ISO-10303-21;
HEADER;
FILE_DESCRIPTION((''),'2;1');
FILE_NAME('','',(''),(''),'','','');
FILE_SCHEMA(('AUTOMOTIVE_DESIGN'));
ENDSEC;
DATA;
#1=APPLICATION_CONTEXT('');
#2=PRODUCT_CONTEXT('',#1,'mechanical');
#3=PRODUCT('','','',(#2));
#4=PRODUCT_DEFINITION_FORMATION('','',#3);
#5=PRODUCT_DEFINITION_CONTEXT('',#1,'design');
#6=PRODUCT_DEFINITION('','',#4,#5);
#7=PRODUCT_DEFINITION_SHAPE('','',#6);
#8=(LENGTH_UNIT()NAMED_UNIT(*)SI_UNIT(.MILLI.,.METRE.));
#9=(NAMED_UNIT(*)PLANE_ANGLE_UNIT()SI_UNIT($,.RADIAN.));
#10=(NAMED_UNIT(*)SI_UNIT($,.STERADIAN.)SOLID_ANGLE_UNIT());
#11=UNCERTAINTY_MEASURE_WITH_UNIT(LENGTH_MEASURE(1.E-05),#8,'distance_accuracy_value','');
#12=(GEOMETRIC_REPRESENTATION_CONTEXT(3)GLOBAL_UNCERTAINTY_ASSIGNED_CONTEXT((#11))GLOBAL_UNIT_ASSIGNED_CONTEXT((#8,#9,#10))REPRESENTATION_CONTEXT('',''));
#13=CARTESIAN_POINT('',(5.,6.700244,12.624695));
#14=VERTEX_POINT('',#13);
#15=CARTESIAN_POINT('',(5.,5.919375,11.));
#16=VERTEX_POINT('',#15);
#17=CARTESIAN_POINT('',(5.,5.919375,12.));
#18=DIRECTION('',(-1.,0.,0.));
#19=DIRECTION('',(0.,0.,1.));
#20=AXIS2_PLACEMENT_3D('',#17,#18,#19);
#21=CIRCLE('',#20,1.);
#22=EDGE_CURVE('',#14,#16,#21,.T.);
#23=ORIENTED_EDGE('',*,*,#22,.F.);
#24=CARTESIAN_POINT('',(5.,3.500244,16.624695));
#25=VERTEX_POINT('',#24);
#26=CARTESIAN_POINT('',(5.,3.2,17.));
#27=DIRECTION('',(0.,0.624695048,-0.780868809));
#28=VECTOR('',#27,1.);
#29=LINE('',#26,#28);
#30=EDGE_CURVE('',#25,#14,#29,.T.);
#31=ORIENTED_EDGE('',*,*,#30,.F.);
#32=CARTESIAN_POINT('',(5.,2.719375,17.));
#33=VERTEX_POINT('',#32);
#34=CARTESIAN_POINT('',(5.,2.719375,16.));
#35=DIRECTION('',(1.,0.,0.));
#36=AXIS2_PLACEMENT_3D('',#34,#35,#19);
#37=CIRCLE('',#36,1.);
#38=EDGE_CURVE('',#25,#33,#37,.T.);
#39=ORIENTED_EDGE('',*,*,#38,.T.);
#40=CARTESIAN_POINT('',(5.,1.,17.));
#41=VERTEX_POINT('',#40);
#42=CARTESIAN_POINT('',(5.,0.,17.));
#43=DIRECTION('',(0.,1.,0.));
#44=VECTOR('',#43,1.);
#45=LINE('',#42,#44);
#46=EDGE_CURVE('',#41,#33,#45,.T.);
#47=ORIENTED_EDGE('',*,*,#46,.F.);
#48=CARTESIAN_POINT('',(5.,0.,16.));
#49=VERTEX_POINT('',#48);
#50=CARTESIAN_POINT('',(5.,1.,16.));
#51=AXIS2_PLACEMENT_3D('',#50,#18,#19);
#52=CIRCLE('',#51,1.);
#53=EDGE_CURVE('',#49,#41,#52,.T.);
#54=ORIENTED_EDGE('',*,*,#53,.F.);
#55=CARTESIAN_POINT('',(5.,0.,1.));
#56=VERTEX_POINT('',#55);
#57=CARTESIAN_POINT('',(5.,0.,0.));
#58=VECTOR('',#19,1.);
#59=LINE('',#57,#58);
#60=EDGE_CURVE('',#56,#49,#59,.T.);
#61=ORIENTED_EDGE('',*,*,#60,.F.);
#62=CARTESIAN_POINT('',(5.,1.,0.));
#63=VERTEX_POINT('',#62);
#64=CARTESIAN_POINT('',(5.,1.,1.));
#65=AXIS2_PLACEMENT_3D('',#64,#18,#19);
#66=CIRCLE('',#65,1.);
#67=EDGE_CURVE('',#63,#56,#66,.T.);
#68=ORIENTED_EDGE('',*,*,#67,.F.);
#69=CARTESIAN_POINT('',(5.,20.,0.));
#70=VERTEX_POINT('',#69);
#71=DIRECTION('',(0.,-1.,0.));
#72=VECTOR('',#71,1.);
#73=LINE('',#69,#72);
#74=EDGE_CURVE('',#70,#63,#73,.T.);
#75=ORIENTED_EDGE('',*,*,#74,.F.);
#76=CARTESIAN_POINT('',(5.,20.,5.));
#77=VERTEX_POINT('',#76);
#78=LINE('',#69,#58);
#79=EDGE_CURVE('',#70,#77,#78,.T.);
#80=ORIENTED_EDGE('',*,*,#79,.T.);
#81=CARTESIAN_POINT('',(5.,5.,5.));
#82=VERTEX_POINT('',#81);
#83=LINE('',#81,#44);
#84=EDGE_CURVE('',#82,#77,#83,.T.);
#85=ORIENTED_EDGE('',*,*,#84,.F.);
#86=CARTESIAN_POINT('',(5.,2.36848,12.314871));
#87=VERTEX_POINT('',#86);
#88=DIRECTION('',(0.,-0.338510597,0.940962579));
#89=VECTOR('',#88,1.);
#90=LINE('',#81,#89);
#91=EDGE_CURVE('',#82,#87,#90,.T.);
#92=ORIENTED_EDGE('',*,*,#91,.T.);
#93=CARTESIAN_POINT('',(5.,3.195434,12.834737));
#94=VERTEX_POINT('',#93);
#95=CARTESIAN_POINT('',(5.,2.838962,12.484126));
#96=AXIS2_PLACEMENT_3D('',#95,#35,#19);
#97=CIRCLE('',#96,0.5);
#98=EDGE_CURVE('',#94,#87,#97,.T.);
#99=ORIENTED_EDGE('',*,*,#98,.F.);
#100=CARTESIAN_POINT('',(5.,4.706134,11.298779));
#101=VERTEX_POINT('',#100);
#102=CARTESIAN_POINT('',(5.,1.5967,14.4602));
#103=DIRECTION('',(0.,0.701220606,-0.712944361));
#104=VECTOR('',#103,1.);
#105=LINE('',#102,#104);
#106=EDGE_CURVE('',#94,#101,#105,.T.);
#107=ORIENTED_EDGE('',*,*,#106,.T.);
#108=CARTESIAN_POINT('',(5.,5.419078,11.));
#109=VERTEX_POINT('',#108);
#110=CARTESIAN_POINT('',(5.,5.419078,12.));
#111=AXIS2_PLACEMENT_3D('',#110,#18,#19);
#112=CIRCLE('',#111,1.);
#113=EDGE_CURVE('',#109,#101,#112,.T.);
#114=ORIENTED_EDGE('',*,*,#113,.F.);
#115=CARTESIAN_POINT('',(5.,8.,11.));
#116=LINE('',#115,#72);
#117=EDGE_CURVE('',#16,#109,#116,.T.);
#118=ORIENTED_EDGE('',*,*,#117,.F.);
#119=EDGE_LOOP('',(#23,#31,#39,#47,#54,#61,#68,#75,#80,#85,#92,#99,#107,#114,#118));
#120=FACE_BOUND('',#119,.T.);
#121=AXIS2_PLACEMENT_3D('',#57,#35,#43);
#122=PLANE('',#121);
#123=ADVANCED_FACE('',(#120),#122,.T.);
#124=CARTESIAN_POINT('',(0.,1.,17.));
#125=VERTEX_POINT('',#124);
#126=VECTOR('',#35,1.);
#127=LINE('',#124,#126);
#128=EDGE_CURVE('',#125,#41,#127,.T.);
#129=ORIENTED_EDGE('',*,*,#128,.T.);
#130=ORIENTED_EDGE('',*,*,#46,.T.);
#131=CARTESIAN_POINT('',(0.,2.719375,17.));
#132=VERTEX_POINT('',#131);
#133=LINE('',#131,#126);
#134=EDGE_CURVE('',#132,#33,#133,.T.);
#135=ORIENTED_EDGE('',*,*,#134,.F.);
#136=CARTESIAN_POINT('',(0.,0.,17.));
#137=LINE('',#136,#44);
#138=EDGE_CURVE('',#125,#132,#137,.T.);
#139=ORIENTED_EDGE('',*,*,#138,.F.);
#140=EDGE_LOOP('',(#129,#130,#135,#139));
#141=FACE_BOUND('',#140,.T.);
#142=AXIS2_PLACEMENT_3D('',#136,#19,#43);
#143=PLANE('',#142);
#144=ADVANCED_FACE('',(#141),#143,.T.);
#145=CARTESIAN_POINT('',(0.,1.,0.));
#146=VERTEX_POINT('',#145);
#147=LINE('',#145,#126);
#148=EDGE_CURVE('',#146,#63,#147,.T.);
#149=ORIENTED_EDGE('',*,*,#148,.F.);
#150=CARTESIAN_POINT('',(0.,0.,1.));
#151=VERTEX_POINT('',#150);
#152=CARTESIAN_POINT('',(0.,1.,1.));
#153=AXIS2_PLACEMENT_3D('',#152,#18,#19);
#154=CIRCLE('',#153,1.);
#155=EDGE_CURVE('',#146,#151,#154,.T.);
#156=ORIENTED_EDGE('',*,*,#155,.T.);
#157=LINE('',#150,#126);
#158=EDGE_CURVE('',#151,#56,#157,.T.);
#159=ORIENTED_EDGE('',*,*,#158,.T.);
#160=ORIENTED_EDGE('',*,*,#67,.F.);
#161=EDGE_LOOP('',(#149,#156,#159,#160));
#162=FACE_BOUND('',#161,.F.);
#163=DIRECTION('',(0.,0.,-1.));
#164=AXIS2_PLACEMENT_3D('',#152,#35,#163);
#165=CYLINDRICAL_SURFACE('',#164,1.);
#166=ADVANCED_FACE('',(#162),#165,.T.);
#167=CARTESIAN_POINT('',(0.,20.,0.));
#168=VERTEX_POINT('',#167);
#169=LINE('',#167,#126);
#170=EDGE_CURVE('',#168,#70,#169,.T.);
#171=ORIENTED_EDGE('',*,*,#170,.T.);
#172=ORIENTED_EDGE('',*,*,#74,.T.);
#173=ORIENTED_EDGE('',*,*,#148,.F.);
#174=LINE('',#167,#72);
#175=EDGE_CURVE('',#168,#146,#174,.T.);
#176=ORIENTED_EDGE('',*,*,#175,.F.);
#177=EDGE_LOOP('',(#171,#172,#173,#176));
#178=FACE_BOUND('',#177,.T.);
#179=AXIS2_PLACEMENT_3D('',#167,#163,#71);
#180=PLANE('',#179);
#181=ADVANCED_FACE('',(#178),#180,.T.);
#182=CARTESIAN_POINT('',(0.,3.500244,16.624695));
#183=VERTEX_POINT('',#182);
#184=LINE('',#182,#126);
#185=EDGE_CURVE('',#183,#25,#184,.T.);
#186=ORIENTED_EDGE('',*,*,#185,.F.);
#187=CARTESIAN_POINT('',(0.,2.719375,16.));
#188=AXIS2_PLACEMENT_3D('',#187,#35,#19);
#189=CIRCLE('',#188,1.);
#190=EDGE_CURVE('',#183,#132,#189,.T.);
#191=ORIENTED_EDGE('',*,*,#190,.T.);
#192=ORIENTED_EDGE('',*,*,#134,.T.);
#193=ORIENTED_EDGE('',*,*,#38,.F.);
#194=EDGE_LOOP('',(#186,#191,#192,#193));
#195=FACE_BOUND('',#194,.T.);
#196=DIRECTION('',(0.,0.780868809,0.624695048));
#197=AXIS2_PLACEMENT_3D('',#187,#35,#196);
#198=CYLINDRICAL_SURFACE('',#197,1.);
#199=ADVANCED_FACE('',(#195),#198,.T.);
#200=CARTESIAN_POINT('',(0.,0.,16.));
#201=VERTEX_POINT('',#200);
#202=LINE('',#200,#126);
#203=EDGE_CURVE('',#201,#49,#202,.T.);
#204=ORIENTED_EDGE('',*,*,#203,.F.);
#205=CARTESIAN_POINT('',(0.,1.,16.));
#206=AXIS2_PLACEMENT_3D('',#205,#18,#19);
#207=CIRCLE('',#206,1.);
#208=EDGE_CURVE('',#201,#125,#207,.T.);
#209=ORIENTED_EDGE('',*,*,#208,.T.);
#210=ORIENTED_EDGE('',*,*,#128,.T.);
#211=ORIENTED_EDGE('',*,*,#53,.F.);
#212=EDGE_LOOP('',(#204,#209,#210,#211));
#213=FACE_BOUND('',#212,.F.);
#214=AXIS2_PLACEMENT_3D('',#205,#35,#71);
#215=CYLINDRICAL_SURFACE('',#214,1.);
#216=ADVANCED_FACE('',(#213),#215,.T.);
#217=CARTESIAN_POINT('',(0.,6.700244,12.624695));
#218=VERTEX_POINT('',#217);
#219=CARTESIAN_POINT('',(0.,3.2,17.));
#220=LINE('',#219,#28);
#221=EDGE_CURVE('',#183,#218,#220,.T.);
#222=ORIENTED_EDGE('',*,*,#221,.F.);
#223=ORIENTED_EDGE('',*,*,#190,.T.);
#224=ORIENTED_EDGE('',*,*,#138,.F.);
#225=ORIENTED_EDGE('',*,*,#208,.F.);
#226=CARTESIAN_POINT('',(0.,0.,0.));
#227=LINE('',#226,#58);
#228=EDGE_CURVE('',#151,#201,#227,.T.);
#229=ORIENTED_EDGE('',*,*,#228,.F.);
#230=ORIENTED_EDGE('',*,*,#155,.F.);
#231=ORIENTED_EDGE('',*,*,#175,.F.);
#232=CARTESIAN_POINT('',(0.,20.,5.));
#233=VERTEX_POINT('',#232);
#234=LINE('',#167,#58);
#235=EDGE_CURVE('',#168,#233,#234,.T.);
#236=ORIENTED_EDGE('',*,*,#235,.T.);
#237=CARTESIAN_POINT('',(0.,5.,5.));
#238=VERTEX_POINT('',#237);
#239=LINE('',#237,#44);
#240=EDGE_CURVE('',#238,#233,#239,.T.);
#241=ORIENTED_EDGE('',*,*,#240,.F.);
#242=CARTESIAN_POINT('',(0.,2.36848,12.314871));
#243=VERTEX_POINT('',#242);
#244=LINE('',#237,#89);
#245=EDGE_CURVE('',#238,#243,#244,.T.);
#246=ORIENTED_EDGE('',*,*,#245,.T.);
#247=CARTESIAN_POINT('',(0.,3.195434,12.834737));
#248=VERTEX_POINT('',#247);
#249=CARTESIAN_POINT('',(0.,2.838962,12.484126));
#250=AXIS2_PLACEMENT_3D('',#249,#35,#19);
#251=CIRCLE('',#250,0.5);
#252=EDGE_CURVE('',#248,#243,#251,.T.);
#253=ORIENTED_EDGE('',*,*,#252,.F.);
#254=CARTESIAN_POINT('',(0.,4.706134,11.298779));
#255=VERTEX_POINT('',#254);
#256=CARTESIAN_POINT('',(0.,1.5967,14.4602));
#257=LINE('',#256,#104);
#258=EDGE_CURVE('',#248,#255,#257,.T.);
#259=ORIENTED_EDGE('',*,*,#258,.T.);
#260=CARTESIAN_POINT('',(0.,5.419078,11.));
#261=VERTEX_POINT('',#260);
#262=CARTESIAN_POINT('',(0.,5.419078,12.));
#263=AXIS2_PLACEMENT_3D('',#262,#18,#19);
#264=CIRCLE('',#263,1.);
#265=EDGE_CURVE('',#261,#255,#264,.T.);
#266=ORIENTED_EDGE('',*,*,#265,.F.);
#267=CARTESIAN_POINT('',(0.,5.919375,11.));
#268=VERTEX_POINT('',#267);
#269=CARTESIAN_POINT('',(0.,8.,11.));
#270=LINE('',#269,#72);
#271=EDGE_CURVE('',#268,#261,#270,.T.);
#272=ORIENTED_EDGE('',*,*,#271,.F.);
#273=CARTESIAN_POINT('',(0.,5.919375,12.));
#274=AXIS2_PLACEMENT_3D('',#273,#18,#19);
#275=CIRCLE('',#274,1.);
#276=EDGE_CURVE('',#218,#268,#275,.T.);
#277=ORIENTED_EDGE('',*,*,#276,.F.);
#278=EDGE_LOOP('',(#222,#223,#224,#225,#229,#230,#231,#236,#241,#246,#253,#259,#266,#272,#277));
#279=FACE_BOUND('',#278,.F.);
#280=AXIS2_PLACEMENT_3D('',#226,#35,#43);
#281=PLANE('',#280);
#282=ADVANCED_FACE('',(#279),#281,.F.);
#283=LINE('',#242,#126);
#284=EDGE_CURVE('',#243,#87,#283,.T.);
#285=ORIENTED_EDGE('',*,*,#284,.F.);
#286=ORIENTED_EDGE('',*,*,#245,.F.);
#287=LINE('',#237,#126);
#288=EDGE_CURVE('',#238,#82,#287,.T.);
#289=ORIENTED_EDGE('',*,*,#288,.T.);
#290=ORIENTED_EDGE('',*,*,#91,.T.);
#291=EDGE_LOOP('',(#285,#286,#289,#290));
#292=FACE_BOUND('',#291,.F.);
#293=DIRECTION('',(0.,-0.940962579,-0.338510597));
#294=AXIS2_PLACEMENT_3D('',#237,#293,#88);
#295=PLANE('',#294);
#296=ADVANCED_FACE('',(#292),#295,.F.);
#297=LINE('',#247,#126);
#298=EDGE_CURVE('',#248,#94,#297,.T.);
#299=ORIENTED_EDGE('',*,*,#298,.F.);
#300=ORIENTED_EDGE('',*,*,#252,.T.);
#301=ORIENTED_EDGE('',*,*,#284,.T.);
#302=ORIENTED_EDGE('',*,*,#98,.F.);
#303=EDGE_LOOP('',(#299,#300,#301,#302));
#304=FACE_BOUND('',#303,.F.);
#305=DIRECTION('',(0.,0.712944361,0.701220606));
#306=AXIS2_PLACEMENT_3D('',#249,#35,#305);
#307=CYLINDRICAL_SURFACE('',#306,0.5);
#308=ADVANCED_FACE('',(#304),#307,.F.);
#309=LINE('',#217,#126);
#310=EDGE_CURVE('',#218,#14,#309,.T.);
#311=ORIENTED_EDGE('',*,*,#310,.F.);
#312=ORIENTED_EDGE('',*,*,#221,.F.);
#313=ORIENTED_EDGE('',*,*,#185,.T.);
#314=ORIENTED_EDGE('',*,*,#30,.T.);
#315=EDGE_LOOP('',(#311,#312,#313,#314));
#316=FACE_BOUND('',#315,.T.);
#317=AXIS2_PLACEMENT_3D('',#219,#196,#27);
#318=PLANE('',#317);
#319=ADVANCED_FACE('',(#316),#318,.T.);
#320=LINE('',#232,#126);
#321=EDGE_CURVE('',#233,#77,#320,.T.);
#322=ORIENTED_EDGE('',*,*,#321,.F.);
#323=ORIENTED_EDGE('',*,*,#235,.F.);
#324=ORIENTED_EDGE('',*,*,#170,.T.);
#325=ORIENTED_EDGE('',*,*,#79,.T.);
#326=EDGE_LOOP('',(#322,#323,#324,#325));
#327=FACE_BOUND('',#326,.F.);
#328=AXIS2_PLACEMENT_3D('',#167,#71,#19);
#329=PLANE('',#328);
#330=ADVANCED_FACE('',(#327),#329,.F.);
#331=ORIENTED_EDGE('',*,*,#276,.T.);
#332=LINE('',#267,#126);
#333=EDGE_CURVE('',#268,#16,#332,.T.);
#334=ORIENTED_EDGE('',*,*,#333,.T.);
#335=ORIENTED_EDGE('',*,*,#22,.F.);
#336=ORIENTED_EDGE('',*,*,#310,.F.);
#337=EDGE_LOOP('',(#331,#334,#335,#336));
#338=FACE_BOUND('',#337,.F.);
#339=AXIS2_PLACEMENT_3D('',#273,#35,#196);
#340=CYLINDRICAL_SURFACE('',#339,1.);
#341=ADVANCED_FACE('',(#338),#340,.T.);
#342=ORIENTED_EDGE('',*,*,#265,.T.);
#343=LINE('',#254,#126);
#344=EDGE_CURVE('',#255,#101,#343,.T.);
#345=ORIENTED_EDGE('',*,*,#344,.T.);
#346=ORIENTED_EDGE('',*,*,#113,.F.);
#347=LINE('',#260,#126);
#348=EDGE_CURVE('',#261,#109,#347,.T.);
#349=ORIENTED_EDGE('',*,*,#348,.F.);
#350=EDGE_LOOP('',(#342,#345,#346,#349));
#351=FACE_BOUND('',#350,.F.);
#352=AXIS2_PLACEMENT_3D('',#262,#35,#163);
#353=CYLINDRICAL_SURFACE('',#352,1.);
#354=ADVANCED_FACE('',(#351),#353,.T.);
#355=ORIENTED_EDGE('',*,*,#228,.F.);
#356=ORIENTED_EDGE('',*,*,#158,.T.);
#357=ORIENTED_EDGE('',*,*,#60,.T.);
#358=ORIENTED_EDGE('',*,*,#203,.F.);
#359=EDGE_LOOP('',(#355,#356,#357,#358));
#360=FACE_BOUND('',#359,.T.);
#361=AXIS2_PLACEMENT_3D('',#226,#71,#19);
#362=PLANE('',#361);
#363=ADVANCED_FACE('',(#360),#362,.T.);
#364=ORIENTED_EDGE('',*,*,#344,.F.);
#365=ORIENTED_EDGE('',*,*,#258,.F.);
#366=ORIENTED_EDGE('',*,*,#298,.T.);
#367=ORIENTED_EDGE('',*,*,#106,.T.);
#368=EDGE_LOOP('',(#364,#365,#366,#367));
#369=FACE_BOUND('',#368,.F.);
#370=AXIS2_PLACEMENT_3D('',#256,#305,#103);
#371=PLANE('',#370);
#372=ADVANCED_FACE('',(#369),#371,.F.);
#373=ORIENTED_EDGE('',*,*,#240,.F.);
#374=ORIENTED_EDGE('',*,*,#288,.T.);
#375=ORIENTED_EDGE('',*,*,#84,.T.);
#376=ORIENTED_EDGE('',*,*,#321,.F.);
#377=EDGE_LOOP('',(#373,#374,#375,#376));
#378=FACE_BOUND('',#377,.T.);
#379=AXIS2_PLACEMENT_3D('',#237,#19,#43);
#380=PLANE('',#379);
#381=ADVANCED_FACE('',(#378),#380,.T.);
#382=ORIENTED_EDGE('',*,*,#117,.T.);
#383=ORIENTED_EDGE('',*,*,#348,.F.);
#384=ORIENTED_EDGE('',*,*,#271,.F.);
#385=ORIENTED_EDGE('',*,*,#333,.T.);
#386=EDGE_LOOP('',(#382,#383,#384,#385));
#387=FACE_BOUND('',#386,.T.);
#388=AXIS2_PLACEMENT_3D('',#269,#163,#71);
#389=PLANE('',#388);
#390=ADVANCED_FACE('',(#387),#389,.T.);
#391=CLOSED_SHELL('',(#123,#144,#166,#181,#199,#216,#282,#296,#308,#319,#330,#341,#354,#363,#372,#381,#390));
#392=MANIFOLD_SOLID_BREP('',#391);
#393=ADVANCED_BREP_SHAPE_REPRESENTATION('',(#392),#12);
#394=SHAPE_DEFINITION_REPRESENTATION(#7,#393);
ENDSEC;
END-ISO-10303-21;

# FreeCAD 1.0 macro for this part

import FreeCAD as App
import Part
import Sketcher
from FreeCAD import Vector
Q = App.Units.Quantity


def edges_at(feature, points):
    """Names of the edges that pass closest to the given points."""
    edges = feature.Shape.Edges
    near = lambda p: min(range(len(edges)), key=lambda i: edges[i].distToShape(Part.Vertex(*p))[0])
    return sorted({f"Edge{near(p) + 1}" for p in points})

doc = App.newDocument("Part")
body = doc.addObject("PartDesign::Body", "Body")

sketch1 = body.newObject("Sketcher::SketchObject", "Sketch")
sketch1.AttachmentSupport = (doc.getObject("YZ_Plane"), [""])
sketch1.MapMode = "FlatFace"
sketch1.addGeometry(Part.LineSegment(Vector(8, 11, 0), Vector(3.2, 17, 0)), False)
sketch1.addGeometry(Part.LineSegment(Vector(3.2, 17, 0), Vector(0, 17, 0)), False)
sketch1.addGeometry(Part.LineSegment(Vector(0, 17, 0), Vector(0, 0, 0)), False)
sketch1.addGeometry(Part.LineSegment(Vector(0, 0, 0), Vector(20, 0, 0)), False)
sketch1.addGeometry(Part.LineSegment(Vector(20, 0, 0), Vector(20, 5, 0)), False)
sketch1.addGeometry(Part.LineSegment(Vector(20, 5, 0), Vector(5, 5, 0)), False)
sketch1.addGeometry(Part.LineSegment(Vector(5, 5, 0), Vector(1.6, 14.5, 0)), False)
sketch1.addGeometry(Part.LineSegment(Vector(1.6, 14.5, 0), Vector(5, 11, 0)), False)
sketch1.addGeometry(Part.LineSegment(Vector(5, 11, 0), Vector(8, 11, 0)), False)
sketch1.addConstraint(Sketcher.Constraint("Coincident", 0, 2, 1, 1))
sketch1.addConstraint(Sketcher.Constraint("Coincident", 1, 2, 2, 1))
sketch1.addConstraint(Sketcher.Constraint("Coincident", 2, 2, 3, 1))
sketch1.addConstraint(Sketcher.Constraint("Coincident", 3, 2, 4, 1))
sketch1.addConstraint(Sketcher.Constraint("Coincident", 4, 2, 5, 1))
sketch1.addConstraint(Sketcher.Constraint("Coincident", 5, 2, 6, 1))
sketch1.addConstraint(Sketcher.Constraint("Coincident", 6, 2, 7, 1))
sketch1.addConstraint(Sketcher.Constraint("Coincident", 7, 2, 8, 1))
sketch1.addConstraint(Sketcher.Constraint("Coincident", 8, 2, 0, 1))
sketch1.addConstraint(Sketcher.Constraint("Horizontal", 1))
sketch1.addConstraint(Sketcher.Constraint("Vertical", 2))
sketch1.addConstraint(Sketcher.Constraint("Horizontal", 3))
sketch1.addConstraint(Sketcher.Constraint("Vertical", 4))
sketch1.addConstraint(Sketcher.Constraint("Horizontal", 5))
sketch1.addConstraint(Sketcher.Constraint("Horizontal", 8))
sketch1.addConstraint(Sketcher.Constraint("Coincident", 2, 2, -1, 1))
sketch1.addConstraint(Sketcher.Constraint("Vertical", 5, 2, 7, 2))
sketch1.addConstraint(Sketcher.Constraint("DistanceX", 3, 1, 3, 2, Q("20 mm")))
sketch1.addConstraint(Sketcher.Constraint("DistanceX", 8, 1, 8, 2, Q("3 mm")))
sketch1.addConstraint(Sketcher.Constraint("DistanceY", 2, 2, 2, 1, Q("17 mm")))
sketch1.addConstraint(Sketcher.Constraint("DistanceY", 4, 1, 4, 2, Q("5 mm")))
sketch1.addConstraint(Sketcher.Constraint("DistanceX", -1, 1, 5, 2, Q("5 mm")))
sketch1.addConstraint(Sketcher.Constraint("DistanceY", 5, 2, 7, 2, Q("6 mm")))
sketch1.addConstraint(Sketcher.Constraint("DistanceX", 1, 2, 1, 1, Q("3.2 mm")))
sketch1.addConstraint(Sketcher.Constraint("Distance", 6, Q("10.0537 mm")))
sketch1.addConstraint(Sketcher.Constraint("Distance", 7, Q("4.8534 mm")))
pad1 = body.newObject("PartDesign::Pad", "Pad")
pad1.Profile = sketch1
pad1.Length = 5
doc.recompute()

fillet = body.newObject("PartDesign::Fillet", "Fillet")
fillet.Base = (pad1, edges_at(pad1, [
    (2.5, 3.2, 17),
    (2.5, 0, 17),
    (2.5, 0, 0),
    (2.5, 5, 11),
    (2.5, 8, 11),
]))
fillet.Radius = 1
doc.recompute()

fillet2 = body.newObject("PartDesign::Fillet", "Fillet001")
fillet2.Base = (fillet, edges_at(fillet, [(2.5, 1.597, 14.46)]))
fillet2.Radius = 0.5

doc.recompute()
